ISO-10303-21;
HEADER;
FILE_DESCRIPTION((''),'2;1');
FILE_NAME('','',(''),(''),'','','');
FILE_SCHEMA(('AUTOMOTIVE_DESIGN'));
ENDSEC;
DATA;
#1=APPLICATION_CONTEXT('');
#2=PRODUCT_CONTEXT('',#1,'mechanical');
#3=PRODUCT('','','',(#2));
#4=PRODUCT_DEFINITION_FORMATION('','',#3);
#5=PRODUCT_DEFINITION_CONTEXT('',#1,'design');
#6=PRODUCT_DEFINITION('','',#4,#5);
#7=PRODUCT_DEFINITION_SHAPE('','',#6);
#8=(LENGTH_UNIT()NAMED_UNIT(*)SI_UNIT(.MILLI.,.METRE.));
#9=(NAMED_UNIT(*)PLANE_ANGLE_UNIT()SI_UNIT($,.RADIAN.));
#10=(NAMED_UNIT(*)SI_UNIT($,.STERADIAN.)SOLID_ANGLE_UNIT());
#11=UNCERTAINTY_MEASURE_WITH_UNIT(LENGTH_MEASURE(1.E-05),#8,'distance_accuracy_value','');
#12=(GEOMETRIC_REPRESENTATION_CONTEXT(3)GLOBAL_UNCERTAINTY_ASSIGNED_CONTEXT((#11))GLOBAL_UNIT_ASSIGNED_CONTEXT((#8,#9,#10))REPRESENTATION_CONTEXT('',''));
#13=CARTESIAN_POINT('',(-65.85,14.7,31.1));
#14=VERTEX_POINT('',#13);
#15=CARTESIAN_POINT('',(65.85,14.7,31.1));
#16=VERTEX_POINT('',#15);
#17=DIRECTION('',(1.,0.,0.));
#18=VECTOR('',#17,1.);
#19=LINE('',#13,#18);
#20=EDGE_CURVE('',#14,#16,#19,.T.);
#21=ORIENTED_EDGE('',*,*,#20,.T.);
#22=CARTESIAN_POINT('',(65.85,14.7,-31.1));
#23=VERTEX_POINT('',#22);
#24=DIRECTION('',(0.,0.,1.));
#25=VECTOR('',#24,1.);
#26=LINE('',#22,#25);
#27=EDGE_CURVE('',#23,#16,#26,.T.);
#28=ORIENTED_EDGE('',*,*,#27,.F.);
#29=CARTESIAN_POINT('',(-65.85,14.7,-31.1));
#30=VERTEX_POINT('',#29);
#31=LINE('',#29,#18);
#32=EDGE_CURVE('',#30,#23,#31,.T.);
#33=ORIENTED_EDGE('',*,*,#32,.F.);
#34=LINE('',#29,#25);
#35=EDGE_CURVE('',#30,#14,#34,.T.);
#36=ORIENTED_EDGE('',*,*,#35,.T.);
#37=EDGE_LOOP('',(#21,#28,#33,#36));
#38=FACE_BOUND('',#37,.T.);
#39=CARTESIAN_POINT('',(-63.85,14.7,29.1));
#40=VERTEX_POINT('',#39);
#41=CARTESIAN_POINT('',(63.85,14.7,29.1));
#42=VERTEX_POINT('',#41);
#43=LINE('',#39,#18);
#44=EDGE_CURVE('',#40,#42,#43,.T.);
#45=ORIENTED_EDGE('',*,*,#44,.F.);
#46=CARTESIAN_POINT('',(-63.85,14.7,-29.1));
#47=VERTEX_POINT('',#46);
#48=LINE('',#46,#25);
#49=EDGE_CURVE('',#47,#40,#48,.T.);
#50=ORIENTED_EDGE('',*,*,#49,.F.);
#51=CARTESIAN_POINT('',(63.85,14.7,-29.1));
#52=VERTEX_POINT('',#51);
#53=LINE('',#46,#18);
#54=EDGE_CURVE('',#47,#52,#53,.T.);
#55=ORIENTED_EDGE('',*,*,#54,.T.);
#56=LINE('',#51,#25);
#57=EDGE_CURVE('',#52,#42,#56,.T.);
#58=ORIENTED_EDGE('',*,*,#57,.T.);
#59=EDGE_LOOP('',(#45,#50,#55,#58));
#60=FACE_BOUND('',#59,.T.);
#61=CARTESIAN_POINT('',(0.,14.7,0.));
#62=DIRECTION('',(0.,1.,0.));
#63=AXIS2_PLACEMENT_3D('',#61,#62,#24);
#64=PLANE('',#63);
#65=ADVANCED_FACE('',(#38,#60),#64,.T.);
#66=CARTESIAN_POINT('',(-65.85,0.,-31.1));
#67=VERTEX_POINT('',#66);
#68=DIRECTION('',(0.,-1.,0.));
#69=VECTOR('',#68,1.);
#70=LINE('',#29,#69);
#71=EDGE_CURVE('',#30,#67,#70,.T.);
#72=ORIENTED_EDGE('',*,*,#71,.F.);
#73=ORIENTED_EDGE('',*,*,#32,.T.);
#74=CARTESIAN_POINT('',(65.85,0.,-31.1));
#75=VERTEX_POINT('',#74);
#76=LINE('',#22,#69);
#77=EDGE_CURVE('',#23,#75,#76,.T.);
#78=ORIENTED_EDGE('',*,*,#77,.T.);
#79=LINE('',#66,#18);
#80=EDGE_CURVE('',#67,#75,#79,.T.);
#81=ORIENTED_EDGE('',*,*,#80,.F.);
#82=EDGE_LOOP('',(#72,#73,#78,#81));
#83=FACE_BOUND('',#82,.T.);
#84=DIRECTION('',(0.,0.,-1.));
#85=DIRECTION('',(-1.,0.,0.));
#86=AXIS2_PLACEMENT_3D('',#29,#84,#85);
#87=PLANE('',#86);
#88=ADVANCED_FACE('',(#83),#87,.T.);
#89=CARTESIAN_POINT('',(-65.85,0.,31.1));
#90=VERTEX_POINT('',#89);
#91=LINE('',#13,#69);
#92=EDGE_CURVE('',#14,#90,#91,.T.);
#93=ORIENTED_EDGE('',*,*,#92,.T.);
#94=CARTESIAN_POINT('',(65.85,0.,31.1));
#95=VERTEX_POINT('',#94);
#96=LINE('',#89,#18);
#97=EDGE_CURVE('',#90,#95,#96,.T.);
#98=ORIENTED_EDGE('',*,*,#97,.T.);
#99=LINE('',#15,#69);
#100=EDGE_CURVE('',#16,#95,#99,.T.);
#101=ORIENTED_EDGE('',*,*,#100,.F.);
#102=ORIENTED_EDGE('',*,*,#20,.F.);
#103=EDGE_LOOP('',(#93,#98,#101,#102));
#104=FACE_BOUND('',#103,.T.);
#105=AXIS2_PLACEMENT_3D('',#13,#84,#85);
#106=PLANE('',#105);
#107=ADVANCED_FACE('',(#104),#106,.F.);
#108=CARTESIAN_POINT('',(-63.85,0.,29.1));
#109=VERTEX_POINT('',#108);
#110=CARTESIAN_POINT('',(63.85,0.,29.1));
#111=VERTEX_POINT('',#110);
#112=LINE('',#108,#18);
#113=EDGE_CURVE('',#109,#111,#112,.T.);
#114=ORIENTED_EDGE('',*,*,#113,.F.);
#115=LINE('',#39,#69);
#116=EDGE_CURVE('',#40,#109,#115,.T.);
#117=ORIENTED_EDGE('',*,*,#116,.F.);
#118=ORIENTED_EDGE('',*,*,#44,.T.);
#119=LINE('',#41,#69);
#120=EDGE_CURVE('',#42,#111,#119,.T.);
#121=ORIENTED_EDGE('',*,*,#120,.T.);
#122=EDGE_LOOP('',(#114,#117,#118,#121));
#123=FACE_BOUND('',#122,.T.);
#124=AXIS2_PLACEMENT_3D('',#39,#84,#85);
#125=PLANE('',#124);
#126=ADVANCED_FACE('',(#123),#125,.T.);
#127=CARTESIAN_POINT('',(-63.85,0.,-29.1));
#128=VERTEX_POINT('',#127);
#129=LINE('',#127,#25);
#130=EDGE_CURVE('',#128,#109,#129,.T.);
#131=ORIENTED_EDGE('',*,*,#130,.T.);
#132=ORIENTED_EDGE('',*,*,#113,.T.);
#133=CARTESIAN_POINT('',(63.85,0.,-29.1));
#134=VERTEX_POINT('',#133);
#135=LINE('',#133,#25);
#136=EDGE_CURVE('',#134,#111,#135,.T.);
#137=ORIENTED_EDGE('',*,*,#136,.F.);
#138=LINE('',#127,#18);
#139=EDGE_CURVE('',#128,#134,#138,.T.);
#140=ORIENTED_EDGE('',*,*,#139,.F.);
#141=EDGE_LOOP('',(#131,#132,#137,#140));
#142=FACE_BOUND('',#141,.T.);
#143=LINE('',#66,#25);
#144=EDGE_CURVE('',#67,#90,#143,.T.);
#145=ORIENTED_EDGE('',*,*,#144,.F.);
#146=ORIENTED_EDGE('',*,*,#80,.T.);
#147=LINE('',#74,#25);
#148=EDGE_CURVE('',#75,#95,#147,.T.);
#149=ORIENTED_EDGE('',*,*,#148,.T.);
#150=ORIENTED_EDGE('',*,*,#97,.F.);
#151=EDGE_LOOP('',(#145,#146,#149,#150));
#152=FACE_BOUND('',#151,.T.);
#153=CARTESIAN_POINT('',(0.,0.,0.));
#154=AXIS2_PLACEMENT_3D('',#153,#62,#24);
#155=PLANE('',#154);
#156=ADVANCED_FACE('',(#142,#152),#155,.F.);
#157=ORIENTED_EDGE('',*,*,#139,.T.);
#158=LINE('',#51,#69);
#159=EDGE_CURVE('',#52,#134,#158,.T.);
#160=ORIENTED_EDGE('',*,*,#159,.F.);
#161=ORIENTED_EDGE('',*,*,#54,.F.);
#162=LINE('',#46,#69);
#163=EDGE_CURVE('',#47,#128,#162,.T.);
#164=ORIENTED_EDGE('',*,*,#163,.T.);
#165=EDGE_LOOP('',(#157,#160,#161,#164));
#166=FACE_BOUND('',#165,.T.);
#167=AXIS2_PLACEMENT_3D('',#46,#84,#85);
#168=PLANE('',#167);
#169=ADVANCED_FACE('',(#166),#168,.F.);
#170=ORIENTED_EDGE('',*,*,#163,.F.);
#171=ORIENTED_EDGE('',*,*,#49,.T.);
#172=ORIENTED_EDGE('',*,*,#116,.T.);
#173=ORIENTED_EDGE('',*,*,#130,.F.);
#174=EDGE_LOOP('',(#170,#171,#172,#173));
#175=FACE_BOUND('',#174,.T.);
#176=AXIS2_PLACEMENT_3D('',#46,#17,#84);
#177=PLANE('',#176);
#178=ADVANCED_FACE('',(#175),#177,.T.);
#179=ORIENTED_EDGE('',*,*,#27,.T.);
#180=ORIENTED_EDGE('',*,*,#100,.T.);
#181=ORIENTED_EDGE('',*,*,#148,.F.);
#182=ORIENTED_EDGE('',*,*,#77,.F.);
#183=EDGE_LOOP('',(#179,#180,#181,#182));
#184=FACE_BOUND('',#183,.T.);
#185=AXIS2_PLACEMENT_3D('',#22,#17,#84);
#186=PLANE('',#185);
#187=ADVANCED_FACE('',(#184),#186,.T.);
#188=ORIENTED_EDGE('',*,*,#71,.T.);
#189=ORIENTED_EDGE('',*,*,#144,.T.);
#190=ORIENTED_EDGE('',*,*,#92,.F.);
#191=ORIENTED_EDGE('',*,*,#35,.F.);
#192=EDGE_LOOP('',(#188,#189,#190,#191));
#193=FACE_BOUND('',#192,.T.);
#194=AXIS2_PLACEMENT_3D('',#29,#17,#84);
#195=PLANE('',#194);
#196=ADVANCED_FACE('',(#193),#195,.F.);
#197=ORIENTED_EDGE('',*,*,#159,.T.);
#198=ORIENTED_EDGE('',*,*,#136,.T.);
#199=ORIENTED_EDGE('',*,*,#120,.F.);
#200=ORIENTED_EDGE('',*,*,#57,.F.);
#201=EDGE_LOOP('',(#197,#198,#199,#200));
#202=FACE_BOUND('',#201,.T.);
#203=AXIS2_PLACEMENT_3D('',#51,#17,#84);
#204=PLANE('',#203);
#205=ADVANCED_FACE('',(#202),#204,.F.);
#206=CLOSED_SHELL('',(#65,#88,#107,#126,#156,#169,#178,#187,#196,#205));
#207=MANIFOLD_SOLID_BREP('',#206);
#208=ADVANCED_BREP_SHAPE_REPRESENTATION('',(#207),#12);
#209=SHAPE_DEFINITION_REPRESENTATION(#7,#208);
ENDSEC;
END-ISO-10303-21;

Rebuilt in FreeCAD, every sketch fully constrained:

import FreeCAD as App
import Part
import Sketcher
from FreeCAD import Vector

doc = App.newDocument("Part")
body = doc.addObject("PartDesign::Body", "Body")

# Sketch on XZ plane
sketch1 = body.newObject("Sketcher::SketchObject", "Sketch")
sketch1.AttachmentSupport = (doc.getObject("XZ_Plane"), [""])
sketch1.MapMode = "FlatFace"
sketch1.addGeometry([
    Part.LineSegment(Vector(-66, -31, 0), Vector(-66, 31, 0)),  # 0
    Part.LineSegment(Vector(-66, 31, 0), Vector(66, 31, 0)),  # 1
    Part.LineSegment(Vector(66, 31, 0), Vector(66, -31, 0)),  # 2
    Part.LineSegment(Vector(66, -31, 0), Vector(-66, -31, 0)),  # 3
    Part.LineSegment(Vector(64, 29, 0), Vector(-64, 29, 0)),  # 4
    Part.LineSegment(Vector(-64, 29, 0), Vector(-64, -29, 0)),  # 5
    Part.LineSegment(Vector(-64, -29, 0), Vector(64, -29, 0)),  # 6
    Part.LineSegment(Vector(64, -29, 0), Vector(64, 29, 0)),  # 7
], False)
sketch1.addConstraint([
    Sketcher.Constraint("Coincident", 0, 2, 1, 1),
    Sketcher.Constraint("Coincident", 1, 2, 2, 1),
    Sketcher.Constraint("Coincident", 2, 2, 3, 1),
    Sketcher.Constraint("Coincident", 3, 2, 0, 1),
    Sketcher.Constraint("Coincident", 4, 2, 5, 1),
    Sketcher.Constraint("Coincident", 5, 2, 6, 1),
    Sketcher.Constraint("Coincident", 6, 2, 7, 1),
    Sketcher.Constraint("Coincident", 7, 2, 4, 1),
    Sketcher.Constraint("Vertical", 0),
    Sketcher.Constraint("Horizontal", 1),
    Sketcher.Constraint("Vertical", 2),
    Sketcher.Constraint("Horizontal", 3),
    Sketcher.Constraint("Horizontal", 4),
    Sketcher.Constraint("Vertical", 5),
    Sketcher.Constraint("Horizontal", 6),
    Sketcher.Constraint("Vertical", 7),
    Sketcher.Constraint("Symmetric", 0, 2, 2, 2, -1, 1),
    Sketcher.Constraint("Symmetric", 4, 2, 6, 2, -1, 1),
    Sketcher.Constraint("DistanceX", 1, 1, 1, 2, 131.7),
    Sketcher.Constraint("DistanceX", 4, 2, 4, 1, 127.7),
    Sketcher.Constraint("DistanceY", 0, 1, 0, 2, 62.2),
    Sketcher.Constraint("DistanceY", 5, 2, 5, 1, 58.2),
])
pad1 = body.newObject("PartDesign::Pad", "Pad")
pad1.Profile = sketch1
pad1.Length = 14.7
pad1.Reversed = True

doc.recompute()
